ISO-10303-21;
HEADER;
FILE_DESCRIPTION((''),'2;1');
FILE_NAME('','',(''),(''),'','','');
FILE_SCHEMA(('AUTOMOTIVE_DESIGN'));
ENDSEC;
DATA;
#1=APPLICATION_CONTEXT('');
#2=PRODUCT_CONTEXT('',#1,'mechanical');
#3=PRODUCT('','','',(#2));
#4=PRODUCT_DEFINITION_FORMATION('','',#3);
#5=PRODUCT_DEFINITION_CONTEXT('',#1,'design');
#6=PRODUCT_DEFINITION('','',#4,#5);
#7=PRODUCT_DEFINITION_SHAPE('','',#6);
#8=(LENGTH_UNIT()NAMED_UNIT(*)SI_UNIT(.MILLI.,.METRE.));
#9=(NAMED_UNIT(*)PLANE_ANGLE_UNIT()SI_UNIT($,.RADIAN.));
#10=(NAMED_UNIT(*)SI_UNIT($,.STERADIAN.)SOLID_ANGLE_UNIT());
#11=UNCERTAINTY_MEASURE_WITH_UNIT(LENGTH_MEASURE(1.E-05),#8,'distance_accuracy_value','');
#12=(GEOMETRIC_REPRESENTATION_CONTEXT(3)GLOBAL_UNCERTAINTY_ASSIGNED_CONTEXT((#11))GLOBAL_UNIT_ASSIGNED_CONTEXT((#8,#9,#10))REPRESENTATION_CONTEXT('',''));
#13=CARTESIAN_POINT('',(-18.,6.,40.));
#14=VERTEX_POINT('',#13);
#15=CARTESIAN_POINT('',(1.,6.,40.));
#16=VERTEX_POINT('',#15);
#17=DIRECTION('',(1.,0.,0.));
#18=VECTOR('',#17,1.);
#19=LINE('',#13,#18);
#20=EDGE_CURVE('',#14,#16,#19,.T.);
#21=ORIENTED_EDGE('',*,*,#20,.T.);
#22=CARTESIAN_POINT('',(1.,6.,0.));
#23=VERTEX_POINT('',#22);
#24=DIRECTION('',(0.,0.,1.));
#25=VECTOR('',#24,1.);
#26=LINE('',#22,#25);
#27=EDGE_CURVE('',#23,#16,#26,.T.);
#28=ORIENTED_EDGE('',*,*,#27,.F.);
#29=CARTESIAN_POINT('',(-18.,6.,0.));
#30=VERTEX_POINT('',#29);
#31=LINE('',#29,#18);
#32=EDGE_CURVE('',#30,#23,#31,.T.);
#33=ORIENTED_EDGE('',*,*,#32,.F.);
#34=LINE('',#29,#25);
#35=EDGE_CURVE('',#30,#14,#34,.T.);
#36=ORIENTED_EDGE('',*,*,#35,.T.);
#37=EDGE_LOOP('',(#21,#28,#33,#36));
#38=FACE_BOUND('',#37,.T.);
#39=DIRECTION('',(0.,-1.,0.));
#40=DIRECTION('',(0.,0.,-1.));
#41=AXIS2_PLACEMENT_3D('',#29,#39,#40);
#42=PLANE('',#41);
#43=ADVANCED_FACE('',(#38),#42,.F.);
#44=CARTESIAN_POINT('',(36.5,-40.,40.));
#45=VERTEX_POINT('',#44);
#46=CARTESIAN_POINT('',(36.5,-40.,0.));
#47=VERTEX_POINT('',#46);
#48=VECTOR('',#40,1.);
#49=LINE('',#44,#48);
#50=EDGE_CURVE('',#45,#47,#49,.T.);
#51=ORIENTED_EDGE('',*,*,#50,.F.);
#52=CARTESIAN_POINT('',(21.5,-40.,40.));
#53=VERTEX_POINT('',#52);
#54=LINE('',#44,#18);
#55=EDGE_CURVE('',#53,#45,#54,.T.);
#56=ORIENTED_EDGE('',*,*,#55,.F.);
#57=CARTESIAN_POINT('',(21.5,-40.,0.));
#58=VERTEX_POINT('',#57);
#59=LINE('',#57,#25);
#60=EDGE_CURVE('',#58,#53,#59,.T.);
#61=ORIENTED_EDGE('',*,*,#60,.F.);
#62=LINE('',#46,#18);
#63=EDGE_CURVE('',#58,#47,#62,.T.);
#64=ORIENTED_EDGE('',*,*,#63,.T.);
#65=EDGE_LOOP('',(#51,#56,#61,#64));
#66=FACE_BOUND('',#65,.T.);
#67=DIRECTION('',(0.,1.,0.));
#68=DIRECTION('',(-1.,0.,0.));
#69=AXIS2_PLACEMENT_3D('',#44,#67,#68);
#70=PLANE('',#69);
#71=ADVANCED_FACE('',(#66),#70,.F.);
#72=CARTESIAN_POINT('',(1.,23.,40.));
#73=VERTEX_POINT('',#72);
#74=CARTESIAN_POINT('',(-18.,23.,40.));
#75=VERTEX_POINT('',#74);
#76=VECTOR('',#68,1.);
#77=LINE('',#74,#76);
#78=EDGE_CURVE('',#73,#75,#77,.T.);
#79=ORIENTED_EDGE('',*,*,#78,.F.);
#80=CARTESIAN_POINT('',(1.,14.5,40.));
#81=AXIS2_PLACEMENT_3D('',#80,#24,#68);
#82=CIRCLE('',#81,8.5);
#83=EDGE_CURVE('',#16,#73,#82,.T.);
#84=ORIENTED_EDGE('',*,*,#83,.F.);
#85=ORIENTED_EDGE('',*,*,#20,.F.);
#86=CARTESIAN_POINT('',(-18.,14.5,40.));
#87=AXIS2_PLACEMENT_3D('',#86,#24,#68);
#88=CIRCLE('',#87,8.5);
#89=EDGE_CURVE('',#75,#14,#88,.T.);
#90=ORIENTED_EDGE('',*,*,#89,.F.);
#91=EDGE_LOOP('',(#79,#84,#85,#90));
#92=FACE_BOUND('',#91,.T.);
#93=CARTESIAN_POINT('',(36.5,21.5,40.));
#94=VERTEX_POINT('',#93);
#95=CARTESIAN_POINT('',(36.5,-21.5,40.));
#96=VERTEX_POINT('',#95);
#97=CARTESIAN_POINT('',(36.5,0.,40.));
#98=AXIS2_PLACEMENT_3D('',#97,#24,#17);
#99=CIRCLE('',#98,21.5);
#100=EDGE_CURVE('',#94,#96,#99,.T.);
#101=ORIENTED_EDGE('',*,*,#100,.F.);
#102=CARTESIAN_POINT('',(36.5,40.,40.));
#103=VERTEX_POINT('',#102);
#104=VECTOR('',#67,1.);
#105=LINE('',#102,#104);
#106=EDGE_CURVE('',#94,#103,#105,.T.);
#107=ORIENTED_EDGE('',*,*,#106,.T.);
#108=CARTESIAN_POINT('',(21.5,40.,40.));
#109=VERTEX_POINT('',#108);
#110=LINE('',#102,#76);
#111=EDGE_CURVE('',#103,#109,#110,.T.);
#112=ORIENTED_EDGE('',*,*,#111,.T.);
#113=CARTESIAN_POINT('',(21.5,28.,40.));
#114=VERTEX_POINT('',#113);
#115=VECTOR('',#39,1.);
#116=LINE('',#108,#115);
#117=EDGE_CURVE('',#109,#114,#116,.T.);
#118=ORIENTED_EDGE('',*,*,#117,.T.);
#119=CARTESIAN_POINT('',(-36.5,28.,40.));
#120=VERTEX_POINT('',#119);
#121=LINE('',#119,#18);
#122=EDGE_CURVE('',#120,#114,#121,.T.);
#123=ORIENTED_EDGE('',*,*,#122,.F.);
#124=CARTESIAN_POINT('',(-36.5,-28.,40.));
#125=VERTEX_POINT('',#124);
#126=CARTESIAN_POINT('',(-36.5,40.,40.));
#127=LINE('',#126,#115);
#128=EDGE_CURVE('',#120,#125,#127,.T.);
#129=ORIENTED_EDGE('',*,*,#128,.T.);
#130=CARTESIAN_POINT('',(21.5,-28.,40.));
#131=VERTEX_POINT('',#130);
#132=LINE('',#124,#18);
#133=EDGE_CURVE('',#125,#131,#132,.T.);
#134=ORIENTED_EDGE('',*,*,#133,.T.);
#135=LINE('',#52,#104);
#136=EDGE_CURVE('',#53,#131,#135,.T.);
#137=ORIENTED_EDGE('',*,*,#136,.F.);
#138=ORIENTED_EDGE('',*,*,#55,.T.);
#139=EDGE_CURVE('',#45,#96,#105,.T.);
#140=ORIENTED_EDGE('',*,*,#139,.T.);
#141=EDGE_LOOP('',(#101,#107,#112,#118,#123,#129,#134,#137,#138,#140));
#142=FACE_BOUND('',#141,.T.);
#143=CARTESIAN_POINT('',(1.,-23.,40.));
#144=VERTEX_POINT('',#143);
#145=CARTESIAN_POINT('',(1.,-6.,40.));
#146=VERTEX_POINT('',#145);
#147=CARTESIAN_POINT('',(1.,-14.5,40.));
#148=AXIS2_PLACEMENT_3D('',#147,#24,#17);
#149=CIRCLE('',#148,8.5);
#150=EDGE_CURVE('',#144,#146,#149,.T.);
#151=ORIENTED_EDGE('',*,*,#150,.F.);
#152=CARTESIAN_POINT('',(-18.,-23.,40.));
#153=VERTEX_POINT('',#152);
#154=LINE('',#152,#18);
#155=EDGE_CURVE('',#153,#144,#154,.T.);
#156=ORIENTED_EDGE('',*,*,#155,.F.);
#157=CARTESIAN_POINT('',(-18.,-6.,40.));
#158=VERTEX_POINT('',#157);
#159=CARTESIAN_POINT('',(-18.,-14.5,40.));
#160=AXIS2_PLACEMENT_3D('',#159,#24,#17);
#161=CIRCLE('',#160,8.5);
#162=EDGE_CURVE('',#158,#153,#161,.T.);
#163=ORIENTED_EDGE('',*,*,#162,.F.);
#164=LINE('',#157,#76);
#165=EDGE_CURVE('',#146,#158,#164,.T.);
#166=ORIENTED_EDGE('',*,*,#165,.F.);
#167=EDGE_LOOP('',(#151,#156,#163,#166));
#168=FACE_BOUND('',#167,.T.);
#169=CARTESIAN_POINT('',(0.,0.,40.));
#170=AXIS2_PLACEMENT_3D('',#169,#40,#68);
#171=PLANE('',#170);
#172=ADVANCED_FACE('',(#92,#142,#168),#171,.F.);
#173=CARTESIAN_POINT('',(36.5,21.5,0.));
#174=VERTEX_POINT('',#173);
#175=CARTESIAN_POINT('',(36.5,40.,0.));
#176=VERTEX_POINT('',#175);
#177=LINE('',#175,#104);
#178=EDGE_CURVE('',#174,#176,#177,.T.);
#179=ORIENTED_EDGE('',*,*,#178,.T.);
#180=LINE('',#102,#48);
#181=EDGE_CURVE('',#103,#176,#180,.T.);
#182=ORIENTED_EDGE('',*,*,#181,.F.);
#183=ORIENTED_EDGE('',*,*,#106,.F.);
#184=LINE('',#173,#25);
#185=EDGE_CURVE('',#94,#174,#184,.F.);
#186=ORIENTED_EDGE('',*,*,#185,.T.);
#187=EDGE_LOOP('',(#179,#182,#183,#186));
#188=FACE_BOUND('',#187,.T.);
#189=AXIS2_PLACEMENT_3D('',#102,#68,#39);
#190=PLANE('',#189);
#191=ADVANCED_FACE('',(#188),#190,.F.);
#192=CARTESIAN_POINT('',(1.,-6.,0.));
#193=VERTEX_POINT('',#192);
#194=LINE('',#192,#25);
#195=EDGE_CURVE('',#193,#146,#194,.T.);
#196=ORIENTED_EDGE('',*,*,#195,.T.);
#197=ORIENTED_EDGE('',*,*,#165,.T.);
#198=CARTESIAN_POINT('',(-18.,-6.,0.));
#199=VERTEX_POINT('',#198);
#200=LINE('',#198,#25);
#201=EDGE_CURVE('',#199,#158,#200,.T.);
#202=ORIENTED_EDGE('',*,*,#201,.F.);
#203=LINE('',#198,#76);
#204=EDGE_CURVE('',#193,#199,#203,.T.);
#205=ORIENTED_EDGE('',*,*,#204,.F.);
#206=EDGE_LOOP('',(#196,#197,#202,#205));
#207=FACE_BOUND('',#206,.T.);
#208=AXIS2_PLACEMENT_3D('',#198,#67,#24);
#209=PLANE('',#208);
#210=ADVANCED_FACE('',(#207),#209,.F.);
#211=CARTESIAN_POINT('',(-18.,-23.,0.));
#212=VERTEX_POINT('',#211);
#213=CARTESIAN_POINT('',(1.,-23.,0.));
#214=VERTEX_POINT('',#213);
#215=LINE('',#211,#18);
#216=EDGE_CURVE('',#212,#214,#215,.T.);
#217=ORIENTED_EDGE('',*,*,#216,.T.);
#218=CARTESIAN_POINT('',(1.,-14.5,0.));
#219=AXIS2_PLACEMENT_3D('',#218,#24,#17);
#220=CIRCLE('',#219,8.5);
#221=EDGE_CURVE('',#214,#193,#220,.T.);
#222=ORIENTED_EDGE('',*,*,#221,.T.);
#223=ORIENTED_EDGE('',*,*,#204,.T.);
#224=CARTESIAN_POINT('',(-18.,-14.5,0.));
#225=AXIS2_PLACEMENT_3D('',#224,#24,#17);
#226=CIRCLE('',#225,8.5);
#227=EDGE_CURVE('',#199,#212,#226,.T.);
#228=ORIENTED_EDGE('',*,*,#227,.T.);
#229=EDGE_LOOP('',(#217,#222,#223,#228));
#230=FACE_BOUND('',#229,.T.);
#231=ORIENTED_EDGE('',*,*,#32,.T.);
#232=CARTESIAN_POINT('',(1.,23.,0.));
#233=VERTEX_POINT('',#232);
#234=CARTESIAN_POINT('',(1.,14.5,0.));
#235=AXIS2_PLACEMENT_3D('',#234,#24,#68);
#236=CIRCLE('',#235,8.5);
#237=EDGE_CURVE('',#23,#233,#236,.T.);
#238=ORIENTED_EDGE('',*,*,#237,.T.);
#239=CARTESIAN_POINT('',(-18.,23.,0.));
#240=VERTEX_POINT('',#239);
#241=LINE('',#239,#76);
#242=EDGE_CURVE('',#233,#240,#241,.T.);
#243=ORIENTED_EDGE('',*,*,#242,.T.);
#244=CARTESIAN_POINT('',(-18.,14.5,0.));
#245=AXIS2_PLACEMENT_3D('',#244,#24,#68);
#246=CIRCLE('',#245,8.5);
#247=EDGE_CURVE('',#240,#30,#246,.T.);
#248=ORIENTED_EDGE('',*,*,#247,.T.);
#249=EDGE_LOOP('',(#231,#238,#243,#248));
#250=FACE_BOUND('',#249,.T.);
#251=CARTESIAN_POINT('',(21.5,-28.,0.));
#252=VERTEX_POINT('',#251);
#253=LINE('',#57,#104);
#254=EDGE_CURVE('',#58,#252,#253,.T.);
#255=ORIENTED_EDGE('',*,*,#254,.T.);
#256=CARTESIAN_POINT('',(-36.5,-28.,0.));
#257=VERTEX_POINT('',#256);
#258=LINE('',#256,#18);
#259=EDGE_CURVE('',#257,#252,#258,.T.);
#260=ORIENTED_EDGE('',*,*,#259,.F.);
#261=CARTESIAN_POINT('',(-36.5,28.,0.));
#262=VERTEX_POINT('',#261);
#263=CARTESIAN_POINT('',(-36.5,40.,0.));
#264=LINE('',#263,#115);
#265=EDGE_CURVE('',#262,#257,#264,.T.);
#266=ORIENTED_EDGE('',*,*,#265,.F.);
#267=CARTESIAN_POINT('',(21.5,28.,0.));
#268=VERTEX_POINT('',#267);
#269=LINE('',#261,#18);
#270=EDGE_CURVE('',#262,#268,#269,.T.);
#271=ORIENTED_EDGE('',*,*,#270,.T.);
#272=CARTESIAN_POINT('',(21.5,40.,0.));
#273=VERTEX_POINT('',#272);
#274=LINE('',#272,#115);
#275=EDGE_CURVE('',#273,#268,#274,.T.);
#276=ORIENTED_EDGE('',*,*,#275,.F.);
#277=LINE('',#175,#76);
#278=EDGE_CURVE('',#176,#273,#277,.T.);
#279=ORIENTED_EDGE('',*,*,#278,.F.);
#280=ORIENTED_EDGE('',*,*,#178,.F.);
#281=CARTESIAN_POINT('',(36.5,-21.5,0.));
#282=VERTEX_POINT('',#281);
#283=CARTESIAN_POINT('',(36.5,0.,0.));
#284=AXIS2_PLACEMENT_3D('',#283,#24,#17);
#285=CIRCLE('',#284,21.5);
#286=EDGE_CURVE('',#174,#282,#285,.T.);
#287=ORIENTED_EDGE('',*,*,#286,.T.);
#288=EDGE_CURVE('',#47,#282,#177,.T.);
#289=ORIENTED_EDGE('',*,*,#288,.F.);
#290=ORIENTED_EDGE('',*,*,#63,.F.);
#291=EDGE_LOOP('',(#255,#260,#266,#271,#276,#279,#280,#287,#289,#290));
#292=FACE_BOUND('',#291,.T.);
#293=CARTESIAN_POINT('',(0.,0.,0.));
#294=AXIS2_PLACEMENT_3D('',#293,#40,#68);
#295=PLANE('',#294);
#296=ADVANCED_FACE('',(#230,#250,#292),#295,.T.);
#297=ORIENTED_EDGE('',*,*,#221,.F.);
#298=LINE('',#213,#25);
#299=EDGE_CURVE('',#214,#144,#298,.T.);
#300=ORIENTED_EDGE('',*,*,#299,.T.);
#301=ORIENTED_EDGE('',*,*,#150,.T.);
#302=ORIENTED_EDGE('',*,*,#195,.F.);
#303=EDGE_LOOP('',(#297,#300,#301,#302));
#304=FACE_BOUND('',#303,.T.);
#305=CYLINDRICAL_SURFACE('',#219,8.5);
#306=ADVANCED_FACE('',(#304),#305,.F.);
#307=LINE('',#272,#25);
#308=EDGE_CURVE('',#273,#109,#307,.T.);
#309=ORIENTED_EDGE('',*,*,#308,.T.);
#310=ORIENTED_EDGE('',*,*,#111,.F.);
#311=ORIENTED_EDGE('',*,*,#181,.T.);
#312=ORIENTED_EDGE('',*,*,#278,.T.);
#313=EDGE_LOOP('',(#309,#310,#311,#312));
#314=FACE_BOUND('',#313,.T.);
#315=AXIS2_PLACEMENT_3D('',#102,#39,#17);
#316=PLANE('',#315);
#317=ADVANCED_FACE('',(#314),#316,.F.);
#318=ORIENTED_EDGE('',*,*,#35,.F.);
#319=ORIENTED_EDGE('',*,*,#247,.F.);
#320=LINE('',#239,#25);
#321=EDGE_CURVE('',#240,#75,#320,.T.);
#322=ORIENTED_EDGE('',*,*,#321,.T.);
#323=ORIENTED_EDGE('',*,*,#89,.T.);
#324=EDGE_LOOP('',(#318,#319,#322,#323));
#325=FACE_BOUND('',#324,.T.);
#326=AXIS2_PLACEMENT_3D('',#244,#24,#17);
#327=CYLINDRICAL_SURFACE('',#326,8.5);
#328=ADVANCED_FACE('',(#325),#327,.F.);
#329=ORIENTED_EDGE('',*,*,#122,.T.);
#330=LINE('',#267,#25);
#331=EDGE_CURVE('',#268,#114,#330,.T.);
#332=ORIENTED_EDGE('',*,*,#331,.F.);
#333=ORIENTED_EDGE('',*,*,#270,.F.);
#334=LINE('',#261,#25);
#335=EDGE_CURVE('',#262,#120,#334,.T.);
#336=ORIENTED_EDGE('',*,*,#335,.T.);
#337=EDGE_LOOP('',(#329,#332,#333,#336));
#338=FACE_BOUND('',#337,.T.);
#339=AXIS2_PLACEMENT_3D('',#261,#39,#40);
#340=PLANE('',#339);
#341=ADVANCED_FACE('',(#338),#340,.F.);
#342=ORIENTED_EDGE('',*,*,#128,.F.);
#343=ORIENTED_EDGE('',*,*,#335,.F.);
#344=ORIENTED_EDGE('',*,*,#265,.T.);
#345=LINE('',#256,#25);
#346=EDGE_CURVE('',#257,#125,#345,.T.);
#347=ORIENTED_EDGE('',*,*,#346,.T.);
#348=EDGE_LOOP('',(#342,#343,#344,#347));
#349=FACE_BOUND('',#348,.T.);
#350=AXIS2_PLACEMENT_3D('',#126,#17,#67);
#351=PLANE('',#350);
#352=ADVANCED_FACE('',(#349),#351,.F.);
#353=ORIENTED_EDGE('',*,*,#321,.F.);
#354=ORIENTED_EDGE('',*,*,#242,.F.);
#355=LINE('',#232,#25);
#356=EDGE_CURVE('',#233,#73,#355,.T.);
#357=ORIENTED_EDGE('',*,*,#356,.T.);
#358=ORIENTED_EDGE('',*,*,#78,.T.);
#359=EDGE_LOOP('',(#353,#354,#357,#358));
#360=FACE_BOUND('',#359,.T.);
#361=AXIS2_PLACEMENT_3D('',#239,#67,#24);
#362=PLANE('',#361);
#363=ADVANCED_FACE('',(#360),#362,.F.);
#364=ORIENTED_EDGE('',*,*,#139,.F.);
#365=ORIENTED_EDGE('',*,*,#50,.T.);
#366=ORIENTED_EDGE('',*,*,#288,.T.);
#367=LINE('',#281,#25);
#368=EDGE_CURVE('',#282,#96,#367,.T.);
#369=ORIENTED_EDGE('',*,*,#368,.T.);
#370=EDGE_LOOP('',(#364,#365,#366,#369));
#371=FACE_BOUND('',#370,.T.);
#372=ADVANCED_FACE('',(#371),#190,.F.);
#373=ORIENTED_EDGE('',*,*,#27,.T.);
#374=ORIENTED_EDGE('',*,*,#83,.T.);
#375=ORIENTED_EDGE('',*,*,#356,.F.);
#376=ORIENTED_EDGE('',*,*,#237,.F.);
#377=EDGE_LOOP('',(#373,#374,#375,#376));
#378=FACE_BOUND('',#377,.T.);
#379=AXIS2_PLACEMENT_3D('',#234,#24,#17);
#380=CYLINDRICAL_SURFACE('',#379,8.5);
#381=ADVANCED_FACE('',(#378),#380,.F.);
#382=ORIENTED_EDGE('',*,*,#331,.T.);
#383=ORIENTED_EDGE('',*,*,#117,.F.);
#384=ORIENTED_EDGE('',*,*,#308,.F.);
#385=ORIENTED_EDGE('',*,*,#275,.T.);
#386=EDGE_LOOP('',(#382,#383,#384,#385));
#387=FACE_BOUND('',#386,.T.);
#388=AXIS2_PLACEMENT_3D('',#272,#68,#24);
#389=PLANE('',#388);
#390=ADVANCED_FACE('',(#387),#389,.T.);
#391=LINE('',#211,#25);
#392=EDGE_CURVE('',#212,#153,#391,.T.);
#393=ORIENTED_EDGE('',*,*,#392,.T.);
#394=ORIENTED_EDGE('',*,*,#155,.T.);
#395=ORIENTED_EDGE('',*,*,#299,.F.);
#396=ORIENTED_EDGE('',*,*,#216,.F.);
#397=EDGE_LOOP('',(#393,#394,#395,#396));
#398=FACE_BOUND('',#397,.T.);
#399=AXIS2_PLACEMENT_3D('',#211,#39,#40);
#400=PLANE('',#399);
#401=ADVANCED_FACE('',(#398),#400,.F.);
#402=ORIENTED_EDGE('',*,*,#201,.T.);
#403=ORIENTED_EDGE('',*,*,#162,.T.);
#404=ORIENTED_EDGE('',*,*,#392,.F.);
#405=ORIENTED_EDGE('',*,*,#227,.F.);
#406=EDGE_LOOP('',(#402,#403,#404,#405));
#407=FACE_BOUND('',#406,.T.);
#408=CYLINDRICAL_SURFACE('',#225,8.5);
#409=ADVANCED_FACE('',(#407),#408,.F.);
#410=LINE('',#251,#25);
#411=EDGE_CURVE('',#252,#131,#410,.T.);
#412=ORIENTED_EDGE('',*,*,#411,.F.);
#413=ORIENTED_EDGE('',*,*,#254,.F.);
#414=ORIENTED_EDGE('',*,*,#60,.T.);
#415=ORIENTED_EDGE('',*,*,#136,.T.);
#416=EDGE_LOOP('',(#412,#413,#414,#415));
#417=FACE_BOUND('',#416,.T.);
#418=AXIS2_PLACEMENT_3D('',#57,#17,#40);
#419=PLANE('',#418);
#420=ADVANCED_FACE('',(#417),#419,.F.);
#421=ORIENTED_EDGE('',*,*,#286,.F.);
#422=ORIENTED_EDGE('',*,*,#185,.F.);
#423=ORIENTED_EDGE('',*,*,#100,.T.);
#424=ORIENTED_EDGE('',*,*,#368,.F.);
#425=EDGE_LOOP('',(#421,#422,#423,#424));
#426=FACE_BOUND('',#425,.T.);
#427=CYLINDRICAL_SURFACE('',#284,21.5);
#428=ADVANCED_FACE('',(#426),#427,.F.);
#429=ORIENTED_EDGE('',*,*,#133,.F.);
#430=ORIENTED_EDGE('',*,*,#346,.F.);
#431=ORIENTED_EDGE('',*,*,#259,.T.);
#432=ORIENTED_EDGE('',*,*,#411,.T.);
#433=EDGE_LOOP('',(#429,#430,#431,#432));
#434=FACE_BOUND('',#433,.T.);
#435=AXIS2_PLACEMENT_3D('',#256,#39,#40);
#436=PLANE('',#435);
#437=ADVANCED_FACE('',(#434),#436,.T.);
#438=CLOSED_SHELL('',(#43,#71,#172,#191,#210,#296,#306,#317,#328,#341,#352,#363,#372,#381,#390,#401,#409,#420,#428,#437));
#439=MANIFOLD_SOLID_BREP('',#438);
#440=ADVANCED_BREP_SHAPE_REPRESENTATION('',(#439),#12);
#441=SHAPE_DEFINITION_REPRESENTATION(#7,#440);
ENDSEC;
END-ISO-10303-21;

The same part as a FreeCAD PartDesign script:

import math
import FreeCAD as App
import Part
import Sketcher

doc = App.newDocument("Part")
body = doc.addObject("PartDesign::Body", "Body")

sketch1 = body.newObject("Sketcher::SketchObject", "Sketch")
sketch1.AttachmentSupport = (doc.getObject("XY_Plane"), [""])
sketch1.MapMode = "FlatFace"
sketch1.addGeometry(Part.LineSegment(App.Vector(-36.5, 40, 0), App.Vector(-36.5, -40, 0)), False)
sketch1.addGeometry(Part.LineSegment(App.Vector(-36.5, -40, 0), App.Vector(36.5, -40, 0)), False)
sketch1.addGeometry(Part.LineSegment(App.Vector(36.5, -40, 0), App.Vector(36.5, 40, 0)), False)
sketch1.addGeometry(Part.LineSegment(App.Vector(36.5, 40, 0), App.Vector(-36.5, 40, 0)), False)
sketch1.addConstraint(Sketcher.Constraint("Coincident", 0, 2, 1, 1))
sketch1.addConstraint(Sketcher.Constraint("Coincident", 1, 2, 2, 1))
sketch1.addConstraint(Sketcher.Constraint("Coincident", 2, 2, 3, 1))
sketch1.addConstraint(Sketcher.Constraint("Coincident", 3, 2, 0, 1))
sketch1.addConstraint(Sketcher.Constraint("Vertical", 0))
sketch1.addConstraint(Sketcher.Constraint("Horizontal", 1))
sketch1.addConstraint(Sketcher.Constraint("Vertical", 2))
sketch1.addConstraint(Sketcher.Constraint("Horizontal", 3))
sketch1.addConstraint(Sketcher.Constraint("Symmetric", 0, 2, 2, 2, -1, 1))
sketch1.addConstraint(Sketcher.Constraint("DistanceX", 1, 1, 1, 2, 73.0))
sketch1.addConstraint(Sketcher.Constraint("DistanceY", 0, 2, 0, 1, 80.0))
pad1 = body.newObject("PartDesign::Pad", "Pad")
pad1.Profile = sketch1
pad1.Length = 40

sketch2 = body.newObject("Sketcher::SketchObject", "Sketch001")
sketch2.AttachmentSupport = (doc.getObject("XY_Plane"), [""])
sketch2.MapMode = "FlatFace"
sketch2.AttachmentOffset = App.Placement(App.Vector(0, 0, 40), App.Rotation())
sketch2.addGeometry(Part.Circle(App.Vector(36.5, 0, 0), App.Vector(0, 0, 1), 21.5), False)
sketch2.addGeometry(Part.LineSegment(App.Vector(1, -6, 0), App.Vector(-18, -6, 0)), False)
sketch2.addGeometry(Part.ArcOfCircle(Part.Circle(App.Vector(-18, -14.5, 0), App.Vector(0, 0, 1), 8.5), math.radians(90), math.radians(270)), False)
sketch2.addGeometry(Part.LineSegment(App.Vector(-18, -23, 0), App.Vector(1, -23, 0)), False)
sketch2.addGeometry(Part.ArcOfCircle(Part.Circle(App.Vector(1, -14.5, 0), App.Vector(0, 0, 1), 8.5), math.radians(-90), math.radians(90)), False)
sketch2.addGeometry(Part.LineSegment(App.Vector(-18, 6, 0), App.Vector(1, 6, 0)), False)
sketch2.addGeometry(Part.ArcOfCircle(Part.Circle(App.Vector(1, 14.5, 0), App.Vector(0, 0, 1), 8.5), math.radians(-90), math.radians(90)), False)
sketch2.addGeometry(Part.LineSegment(App.Vector(1, 23, 0), App.Vector(-18, 23, 0)), False)
sketch2.addGeometry(Part.ArcOfCircle(Part.Circle(App.Vector(-18, 14.5, 0), App.Vector(0, 0, 1), 8.5), math.radians(90), math.radians(270)), False)
sketch2.addConstraint(Sketcher.Constraint("Tangent", 1, 2, 2, 1))
sketch2.addConstraint(Sketcher.Constraint("Tangent", 2, 2, 3, 1))
sketch2.addConstraint(Sketcher.Constraint("Tangent", 3, 2, 4, 1))
sketch2.addConstraint(Sketcher.Constraint("Tangent", 4, 2, 1, 1))
sketch2.addConstraint(Sketcher.Constraint("Tangent", 5, 2, 6, 1))
sketch2.addConstraint(Sketcher.Constraint("Tangent", 6, 2, 7, 1))
sketch2.addConstraint(Sketcher.Constraint("Tangent", 7, 2, 8, 1))
sketch2.addConstraint(Sketcher.Constraint("Tangent", 8, 2, 5, 1))
sketch2.addConstraint(Sketcher.Constraint("Horizontal", 1))
sketch2.addConstraint(Sketcher.Constraint("Horizontal", 3))
sketch2.addConstraint(Sketcher.Constraint("Horizontal", 5))
sketch2.addConstraint(Sketcher.Constraint("Horizontal", 7))
sketch2.addConstraint(Sketcher.Constraint("Equal", 4, 6))
sketch2.addConstraint(Sketcher.Constraint("Symmetric", 4, 3, 6, 3, -1))
sketch2.addConstraint(Sketcher.Constraint("PointOnObject", 0, 3, -1))
sketch2.addConstraint(Sketcher.Constraint("Vertical", 2, 3, 8, 3))
sketch2.addConstraint(Sketcher.Constraint("Diameter", 0, 43.0))
sketch2.addConstraint(Sketcher.Constraint("Radius", 2, 8.5))
sketch2.addConstraint(Sketcher.Constraint("DistanceX", 1, 2, 1, 1, 19.0))
sketch2.addConstraint(Sketcher.Constraint("DistanceX", 2, 3, -1, 1, 18.0))
sketch2.addConstraint(Sketcher.Constraint("DistanceY", 1, 2, -1, 1, 6.0))
sketch2.addConstraint(Sketcher.Constraint("DistanceX", -1, 1, 0, 3, 36.5))
pocket1 = body.newObject("PartDesign::Pocket", "Pocket")
pocket1.Profile = sketch2
pocket1.Type = "ThroughAll"

sketch3 = body.newObject("Sketcher::SketchObject", "Sketch002")
sketch3.AttachmentSupport = (doc.getObject("XY_Plane"), [""])
sketch3.MapMode = "FlatFace"
sketch3.AttachmentOffset = App.Placement(App.Vector(0, 0, 40), App.Rotation())
sketch3.addGeometry(Part.LineSegment(App.Vector(-36.5, 40, 0), App.Vector(-36.5, 28, 0)), False)
sketch3.addGeometry(Part.LineSegment(App.Vector(-36.5, 28, 0), App.Vector(21.5, 28, 0)), False)
sketch3.addGeometry(Part.LineSegment(App.Vector(21.5, 28, 0), App.Vector(21.5, 40, 0)), False)
sketch3.addGeometry(Part.LineSegment(App.Vector(21.5, 40, 0), App.Vector(-36.5, 40, 0)), False)
sketch3.addConstraint(Sketcher.Constraint("Coincident", 0, 2, 1, 1))
sketch3.addConstraint(Sketcher.Constraint("Coincident", 1, 2, 2, 1))
sketch3.addConstraint(Sketcher.Constraint("Coincident", 2, 2, 3, 1))
sketch3.addConstraint(Sketcher.Constraint("Coincident", 3, 2, 0, 1))
sketch3.addConstraint(Sketcher.Constraint("Vertical", 0))
sketch3.addConstraint(Sketcher.Constraint("Horizontal", 1))
sketch3.addConstraint(Sketcher.Constraint("Vertical", 2))
sketch3.addConstraint(Sketcher.Constraint("Horizontal", 3))
sketch3.addConstraint(Sketcher.Constraint("DistanceX", 1, 1, 1, 2, 58.0))
sketch3.addConstraint(Sketcher.Constraint("DistanceY", 0, 2, 0, 1, 12.0))
sketch3.addConstraint(Sketcher.Constraint("DistanceY", -1, 1, 0, 2, 28.0))
sketch3.addConstraint(Sketcher.Constraint("DistanceX", 0, 2, -1, 1, 36.5))
pocket2 = body.newObject("PartDesign::Pocket", "Pocket001")
pocket2.Profile = sketch3
pocket2.Type = "ThroughAll"
doc.recompute()

mirrored = body.newObject("PartDesign::Mirrored", "Mirrored")
mirrored.Originals = [pocket2]
mirrored.MirrorPlane = (doc.getObject("XZ_Plane"), [""])
body.Tip = mirrored

doc.recompute()
